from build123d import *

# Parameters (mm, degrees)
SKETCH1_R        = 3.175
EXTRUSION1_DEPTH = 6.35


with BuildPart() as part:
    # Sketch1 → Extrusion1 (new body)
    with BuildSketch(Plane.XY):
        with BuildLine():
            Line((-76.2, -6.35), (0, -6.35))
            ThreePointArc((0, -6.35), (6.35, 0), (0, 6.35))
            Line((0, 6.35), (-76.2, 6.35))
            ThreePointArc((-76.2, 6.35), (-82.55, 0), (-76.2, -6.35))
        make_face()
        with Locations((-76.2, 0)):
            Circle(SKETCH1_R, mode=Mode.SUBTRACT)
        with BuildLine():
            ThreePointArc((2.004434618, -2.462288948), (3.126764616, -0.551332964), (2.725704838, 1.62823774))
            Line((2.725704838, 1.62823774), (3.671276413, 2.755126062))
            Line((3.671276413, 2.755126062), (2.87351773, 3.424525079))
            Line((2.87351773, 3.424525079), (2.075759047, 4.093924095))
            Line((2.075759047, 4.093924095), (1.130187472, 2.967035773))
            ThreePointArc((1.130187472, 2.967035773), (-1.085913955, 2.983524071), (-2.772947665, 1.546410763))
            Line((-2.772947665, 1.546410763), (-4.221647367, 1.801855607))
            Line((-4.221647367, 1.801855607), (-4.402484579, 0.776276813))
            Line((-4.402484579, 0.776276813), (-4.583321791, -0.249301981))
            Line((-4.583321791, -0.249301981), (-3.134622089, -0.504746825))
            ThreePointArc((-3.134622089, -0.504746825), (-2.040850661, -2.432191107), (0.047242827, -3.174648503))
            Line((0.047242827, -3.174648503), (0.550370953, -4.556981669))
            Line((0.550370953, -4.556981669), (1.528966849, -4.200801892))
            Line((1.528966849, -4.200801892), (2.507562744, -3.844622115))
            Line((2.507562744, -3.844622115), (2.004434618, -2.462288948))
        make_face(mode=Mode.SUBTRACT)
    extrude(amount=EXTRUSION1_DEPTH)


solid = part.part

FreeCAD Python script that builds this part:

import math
import FreeCAD as App
import Part
import Sketcher

V = App.Vector
Q = App.Units.Quantity

doc = App.newDocument("Part")
body = doc.addObject("PartDesign::Body", "Body")

# Sketch on XY plane
sketch1 = body.newObject("Sketcher::SketchObject", "Sketch")
sketch1.AttachmentSupport = (doc.getObject("XY_Plane"), [""])
sketch1.MapMode = "FlatFace"
sketch1.addGeometry([
    Part.LineSegment(V(-76.2, -6.35, 0), V(0, -6.35, 0)),  # 0
    Part.ArcOfCircle(Part.Circle(V(0, 0, 0), V(0, 0, 1), 6.35), math.radians(-90), math.radians(90)),  # 1
    Part.LineSegment(V(0, 6.35, 0), V(-76.2, 6.35, 0)),  # 2
    Part.ArcOfCircle(Part.Circle(V(-76.2, 0, 0), V(0, 0, 1), 6.35), math.radians(90), math.radians(270)),  # 3
    Part.Circle(V(-76.2, 0, 0), V(0, 0, 1), 3.175),  # 4
    Part.ArcOfCircle(Part.Circle(V(0, 0, 0), V(0, 0, 1), 3.175), math.radians(-50.852571), math.radians(30.852571)),  # 5
    Part.LineSegment(V(2.004435, -2.462289, 0), V(2.507563, -3.844622, 0)),  # 6
    Part.LineSegment(V(2.507563, -3.844622, 0), V(1.528967, -4.200802, 0)),  # 7
    Part.LineSegment(V(1.528967, -4.200802, 0), V(0.550371, -4.556982, 0)),  # 8
    Part.LineSegment(V(0.550371, -4.556982, 0), V(0.047243, -3.174649, 0)),  # 9
    Part.ArcOfCircle(Part.Circle(V(0, 0, 0), V(0, 0, 1), 3.175), math.radians(-170.852572), math.radians(-89.147429)),  # 10
    Part.LineSegment(V(-3.134622, -0.504747, 0), V(-4.583322, -0.249302, 0)),  # 11
    Part.LineSegment(V(-4.583322, -0.249302, 0), V(-4.221647, 1.801856, 0)),  # 12
    Part.LineSegment(V(-4.221647, 1.801856, 0), V(-2.772948, 1.546411, 0)),  # 13
    Part.ArcOfCircle(Part.Circle(V(0, 0, 0), V(0, 0, 1), 3.175), math.radians(69.147429), math.radians(150.852571)),  # 14
    Part.LineSegment(V(1.130187, 2.967036, 0), V(2.075759, 4.093924, 0)),  # 15
    Part.LineSegment(V(2.075759, 4.093924, 0), V(2.873518, 3.424525, 0)),  # 16
    Part.LineSegment(V(2.873518, 3.424525, 0), V(3.671276, 2.755126, 0)),  # 17
    Part.LineSegment(V(3.671276, 2.755126, 0), V(2.725705, 1.628238, 0)),  # 18
], False)
sketch1.addConstraint([
    Sketcher.Constraint("Tangent", 0, 2, 1, 1),
    Sketcher.Constraint("Tangent", 1, 2, 2, 1),
    Sketcher.Constraint("Tangent", 2, 2, 3, 1),
    Sketcher.Constraint("Tangent", 3, 2, 0, 1),
    Sketcher.Constraint("Coincident", 5, 1, 6, 1),
    Sketcher.Constraint("Coincident", 6, 2, 7, 1),
    Sketcher.Constraint("Coincident", 7, 2, 8, 1),
    Sketcher.Constraint("Coincident", 8, 2, 9, 1),
    Sketcher.Constraint("Coincident", 9, 2, 10, 2),
    Sketcher.Constraint("Coincident", 10, 1, 11, 1),
    Sketcher.Constraint("Coincident", 11, 2, 12, 1),
    Sketcher.Constraint("Coincident", 12, 2, 13, 1),
    Sketcher.Constraint("Coincident", 13, 2, 14, 2),
    Sketcher.Constraint("Coincident", 14, 1, 15, 1),
    Sketcher.Constraint("Coincident", 15, 2, 16, 1),
    Sketcher.Constraint("Coincident", 16, 2, 17, 1),
    Sketcher.Constraint("Coincident", 17, 2, 18, 1),
    Sketcher.Constraint("Coincident", 18, 2, 5, 2),
    Sketcher.Constraint("Horizontal", 0),
    Sketcher.Constraint("Horizontal", 2),
    Sketcher.Constraint("Coincident", 1, 3, -1, 1),
    Sketcher.Constraint("Coincident", 5, 3, -1, 1),
    Sketcher.Constraint("Coincident", 10, 3, -1, 1),
    Sketcher.Constraint("Coincident", 14, 3, -1, 1),
    Sketcher.Constraint("Coincident", 4, 3, 3, 3),
    Sketcher.Constraint("Equal", 4, 5),
    Sketcher.Constraint("Equal", 5, 10),
    Sketcher.Constraint("Equal", 10, 14),
    Sketcher.Constraint("Perpendicular", 6, 7),
    Sketcher.Constraint("Parallel", 7, 8),
    Sketcher.Constraint("Perpendicular", 8, 9),
    Sketcher.Constraint("Perpendicular", 11, 12),
    Sketcher.Constraint("Perpendicular", 12, 13),
    Sketcher.Constraint("Perpendicular", 15, 16),
    Sketcher.Constraint("Parallel", 16, 17),
    Sketcher.Constraint("Perpendicular", 17, 18),
    Sketcher.Constraint("Equal", 7, 8),
    Sketcher.Constraint("Equal", 6, 9),
    Sketcher.Constraint("Equal", 9, 11),
    Sketcher.Constraint("Equal", 11, 13),
    Sketcher.Constraint("Equal", 13, 15),
    Sketcher.Constraint("Equal", 8, 16),
    Sketcher.Constraint("Equal", 16, 17),
    Sketcher.Constraint("Equal", 15, 18),
    Sketcher.Constraint("Diameter", 4, Q("0.25 in")),
    Sketcher.Constraint("DistanceX", 0, 1, 0, 2, Q("3 in")),
    Sketcher.Constraint("Radius", 1, Q("0.25 in")),
    Sketcher.Constraint("Angle", 6, Q("-70 deg")),
    Sketcher.Constraint("Angle", 11, Q("170 deg")),
    Sketcher.Constraint("Angle", 15, Q("50 deg")),
    Sketcher.Constraint("Distance", 7, Q("0.041 in")),
    Sketcher.Constraint("Distance", 12, Q("0.082 in")),
    Sketcher.Constraint("DistanceY", 7, 2, -1, 1, Q("4.200802 mm")),
])
pad1 = body.newObject("PartDesign::Pad", "Pad")
pad1.Profile = sketch1
pad1.Length = Q("0.25 in")

doc.recompute()
